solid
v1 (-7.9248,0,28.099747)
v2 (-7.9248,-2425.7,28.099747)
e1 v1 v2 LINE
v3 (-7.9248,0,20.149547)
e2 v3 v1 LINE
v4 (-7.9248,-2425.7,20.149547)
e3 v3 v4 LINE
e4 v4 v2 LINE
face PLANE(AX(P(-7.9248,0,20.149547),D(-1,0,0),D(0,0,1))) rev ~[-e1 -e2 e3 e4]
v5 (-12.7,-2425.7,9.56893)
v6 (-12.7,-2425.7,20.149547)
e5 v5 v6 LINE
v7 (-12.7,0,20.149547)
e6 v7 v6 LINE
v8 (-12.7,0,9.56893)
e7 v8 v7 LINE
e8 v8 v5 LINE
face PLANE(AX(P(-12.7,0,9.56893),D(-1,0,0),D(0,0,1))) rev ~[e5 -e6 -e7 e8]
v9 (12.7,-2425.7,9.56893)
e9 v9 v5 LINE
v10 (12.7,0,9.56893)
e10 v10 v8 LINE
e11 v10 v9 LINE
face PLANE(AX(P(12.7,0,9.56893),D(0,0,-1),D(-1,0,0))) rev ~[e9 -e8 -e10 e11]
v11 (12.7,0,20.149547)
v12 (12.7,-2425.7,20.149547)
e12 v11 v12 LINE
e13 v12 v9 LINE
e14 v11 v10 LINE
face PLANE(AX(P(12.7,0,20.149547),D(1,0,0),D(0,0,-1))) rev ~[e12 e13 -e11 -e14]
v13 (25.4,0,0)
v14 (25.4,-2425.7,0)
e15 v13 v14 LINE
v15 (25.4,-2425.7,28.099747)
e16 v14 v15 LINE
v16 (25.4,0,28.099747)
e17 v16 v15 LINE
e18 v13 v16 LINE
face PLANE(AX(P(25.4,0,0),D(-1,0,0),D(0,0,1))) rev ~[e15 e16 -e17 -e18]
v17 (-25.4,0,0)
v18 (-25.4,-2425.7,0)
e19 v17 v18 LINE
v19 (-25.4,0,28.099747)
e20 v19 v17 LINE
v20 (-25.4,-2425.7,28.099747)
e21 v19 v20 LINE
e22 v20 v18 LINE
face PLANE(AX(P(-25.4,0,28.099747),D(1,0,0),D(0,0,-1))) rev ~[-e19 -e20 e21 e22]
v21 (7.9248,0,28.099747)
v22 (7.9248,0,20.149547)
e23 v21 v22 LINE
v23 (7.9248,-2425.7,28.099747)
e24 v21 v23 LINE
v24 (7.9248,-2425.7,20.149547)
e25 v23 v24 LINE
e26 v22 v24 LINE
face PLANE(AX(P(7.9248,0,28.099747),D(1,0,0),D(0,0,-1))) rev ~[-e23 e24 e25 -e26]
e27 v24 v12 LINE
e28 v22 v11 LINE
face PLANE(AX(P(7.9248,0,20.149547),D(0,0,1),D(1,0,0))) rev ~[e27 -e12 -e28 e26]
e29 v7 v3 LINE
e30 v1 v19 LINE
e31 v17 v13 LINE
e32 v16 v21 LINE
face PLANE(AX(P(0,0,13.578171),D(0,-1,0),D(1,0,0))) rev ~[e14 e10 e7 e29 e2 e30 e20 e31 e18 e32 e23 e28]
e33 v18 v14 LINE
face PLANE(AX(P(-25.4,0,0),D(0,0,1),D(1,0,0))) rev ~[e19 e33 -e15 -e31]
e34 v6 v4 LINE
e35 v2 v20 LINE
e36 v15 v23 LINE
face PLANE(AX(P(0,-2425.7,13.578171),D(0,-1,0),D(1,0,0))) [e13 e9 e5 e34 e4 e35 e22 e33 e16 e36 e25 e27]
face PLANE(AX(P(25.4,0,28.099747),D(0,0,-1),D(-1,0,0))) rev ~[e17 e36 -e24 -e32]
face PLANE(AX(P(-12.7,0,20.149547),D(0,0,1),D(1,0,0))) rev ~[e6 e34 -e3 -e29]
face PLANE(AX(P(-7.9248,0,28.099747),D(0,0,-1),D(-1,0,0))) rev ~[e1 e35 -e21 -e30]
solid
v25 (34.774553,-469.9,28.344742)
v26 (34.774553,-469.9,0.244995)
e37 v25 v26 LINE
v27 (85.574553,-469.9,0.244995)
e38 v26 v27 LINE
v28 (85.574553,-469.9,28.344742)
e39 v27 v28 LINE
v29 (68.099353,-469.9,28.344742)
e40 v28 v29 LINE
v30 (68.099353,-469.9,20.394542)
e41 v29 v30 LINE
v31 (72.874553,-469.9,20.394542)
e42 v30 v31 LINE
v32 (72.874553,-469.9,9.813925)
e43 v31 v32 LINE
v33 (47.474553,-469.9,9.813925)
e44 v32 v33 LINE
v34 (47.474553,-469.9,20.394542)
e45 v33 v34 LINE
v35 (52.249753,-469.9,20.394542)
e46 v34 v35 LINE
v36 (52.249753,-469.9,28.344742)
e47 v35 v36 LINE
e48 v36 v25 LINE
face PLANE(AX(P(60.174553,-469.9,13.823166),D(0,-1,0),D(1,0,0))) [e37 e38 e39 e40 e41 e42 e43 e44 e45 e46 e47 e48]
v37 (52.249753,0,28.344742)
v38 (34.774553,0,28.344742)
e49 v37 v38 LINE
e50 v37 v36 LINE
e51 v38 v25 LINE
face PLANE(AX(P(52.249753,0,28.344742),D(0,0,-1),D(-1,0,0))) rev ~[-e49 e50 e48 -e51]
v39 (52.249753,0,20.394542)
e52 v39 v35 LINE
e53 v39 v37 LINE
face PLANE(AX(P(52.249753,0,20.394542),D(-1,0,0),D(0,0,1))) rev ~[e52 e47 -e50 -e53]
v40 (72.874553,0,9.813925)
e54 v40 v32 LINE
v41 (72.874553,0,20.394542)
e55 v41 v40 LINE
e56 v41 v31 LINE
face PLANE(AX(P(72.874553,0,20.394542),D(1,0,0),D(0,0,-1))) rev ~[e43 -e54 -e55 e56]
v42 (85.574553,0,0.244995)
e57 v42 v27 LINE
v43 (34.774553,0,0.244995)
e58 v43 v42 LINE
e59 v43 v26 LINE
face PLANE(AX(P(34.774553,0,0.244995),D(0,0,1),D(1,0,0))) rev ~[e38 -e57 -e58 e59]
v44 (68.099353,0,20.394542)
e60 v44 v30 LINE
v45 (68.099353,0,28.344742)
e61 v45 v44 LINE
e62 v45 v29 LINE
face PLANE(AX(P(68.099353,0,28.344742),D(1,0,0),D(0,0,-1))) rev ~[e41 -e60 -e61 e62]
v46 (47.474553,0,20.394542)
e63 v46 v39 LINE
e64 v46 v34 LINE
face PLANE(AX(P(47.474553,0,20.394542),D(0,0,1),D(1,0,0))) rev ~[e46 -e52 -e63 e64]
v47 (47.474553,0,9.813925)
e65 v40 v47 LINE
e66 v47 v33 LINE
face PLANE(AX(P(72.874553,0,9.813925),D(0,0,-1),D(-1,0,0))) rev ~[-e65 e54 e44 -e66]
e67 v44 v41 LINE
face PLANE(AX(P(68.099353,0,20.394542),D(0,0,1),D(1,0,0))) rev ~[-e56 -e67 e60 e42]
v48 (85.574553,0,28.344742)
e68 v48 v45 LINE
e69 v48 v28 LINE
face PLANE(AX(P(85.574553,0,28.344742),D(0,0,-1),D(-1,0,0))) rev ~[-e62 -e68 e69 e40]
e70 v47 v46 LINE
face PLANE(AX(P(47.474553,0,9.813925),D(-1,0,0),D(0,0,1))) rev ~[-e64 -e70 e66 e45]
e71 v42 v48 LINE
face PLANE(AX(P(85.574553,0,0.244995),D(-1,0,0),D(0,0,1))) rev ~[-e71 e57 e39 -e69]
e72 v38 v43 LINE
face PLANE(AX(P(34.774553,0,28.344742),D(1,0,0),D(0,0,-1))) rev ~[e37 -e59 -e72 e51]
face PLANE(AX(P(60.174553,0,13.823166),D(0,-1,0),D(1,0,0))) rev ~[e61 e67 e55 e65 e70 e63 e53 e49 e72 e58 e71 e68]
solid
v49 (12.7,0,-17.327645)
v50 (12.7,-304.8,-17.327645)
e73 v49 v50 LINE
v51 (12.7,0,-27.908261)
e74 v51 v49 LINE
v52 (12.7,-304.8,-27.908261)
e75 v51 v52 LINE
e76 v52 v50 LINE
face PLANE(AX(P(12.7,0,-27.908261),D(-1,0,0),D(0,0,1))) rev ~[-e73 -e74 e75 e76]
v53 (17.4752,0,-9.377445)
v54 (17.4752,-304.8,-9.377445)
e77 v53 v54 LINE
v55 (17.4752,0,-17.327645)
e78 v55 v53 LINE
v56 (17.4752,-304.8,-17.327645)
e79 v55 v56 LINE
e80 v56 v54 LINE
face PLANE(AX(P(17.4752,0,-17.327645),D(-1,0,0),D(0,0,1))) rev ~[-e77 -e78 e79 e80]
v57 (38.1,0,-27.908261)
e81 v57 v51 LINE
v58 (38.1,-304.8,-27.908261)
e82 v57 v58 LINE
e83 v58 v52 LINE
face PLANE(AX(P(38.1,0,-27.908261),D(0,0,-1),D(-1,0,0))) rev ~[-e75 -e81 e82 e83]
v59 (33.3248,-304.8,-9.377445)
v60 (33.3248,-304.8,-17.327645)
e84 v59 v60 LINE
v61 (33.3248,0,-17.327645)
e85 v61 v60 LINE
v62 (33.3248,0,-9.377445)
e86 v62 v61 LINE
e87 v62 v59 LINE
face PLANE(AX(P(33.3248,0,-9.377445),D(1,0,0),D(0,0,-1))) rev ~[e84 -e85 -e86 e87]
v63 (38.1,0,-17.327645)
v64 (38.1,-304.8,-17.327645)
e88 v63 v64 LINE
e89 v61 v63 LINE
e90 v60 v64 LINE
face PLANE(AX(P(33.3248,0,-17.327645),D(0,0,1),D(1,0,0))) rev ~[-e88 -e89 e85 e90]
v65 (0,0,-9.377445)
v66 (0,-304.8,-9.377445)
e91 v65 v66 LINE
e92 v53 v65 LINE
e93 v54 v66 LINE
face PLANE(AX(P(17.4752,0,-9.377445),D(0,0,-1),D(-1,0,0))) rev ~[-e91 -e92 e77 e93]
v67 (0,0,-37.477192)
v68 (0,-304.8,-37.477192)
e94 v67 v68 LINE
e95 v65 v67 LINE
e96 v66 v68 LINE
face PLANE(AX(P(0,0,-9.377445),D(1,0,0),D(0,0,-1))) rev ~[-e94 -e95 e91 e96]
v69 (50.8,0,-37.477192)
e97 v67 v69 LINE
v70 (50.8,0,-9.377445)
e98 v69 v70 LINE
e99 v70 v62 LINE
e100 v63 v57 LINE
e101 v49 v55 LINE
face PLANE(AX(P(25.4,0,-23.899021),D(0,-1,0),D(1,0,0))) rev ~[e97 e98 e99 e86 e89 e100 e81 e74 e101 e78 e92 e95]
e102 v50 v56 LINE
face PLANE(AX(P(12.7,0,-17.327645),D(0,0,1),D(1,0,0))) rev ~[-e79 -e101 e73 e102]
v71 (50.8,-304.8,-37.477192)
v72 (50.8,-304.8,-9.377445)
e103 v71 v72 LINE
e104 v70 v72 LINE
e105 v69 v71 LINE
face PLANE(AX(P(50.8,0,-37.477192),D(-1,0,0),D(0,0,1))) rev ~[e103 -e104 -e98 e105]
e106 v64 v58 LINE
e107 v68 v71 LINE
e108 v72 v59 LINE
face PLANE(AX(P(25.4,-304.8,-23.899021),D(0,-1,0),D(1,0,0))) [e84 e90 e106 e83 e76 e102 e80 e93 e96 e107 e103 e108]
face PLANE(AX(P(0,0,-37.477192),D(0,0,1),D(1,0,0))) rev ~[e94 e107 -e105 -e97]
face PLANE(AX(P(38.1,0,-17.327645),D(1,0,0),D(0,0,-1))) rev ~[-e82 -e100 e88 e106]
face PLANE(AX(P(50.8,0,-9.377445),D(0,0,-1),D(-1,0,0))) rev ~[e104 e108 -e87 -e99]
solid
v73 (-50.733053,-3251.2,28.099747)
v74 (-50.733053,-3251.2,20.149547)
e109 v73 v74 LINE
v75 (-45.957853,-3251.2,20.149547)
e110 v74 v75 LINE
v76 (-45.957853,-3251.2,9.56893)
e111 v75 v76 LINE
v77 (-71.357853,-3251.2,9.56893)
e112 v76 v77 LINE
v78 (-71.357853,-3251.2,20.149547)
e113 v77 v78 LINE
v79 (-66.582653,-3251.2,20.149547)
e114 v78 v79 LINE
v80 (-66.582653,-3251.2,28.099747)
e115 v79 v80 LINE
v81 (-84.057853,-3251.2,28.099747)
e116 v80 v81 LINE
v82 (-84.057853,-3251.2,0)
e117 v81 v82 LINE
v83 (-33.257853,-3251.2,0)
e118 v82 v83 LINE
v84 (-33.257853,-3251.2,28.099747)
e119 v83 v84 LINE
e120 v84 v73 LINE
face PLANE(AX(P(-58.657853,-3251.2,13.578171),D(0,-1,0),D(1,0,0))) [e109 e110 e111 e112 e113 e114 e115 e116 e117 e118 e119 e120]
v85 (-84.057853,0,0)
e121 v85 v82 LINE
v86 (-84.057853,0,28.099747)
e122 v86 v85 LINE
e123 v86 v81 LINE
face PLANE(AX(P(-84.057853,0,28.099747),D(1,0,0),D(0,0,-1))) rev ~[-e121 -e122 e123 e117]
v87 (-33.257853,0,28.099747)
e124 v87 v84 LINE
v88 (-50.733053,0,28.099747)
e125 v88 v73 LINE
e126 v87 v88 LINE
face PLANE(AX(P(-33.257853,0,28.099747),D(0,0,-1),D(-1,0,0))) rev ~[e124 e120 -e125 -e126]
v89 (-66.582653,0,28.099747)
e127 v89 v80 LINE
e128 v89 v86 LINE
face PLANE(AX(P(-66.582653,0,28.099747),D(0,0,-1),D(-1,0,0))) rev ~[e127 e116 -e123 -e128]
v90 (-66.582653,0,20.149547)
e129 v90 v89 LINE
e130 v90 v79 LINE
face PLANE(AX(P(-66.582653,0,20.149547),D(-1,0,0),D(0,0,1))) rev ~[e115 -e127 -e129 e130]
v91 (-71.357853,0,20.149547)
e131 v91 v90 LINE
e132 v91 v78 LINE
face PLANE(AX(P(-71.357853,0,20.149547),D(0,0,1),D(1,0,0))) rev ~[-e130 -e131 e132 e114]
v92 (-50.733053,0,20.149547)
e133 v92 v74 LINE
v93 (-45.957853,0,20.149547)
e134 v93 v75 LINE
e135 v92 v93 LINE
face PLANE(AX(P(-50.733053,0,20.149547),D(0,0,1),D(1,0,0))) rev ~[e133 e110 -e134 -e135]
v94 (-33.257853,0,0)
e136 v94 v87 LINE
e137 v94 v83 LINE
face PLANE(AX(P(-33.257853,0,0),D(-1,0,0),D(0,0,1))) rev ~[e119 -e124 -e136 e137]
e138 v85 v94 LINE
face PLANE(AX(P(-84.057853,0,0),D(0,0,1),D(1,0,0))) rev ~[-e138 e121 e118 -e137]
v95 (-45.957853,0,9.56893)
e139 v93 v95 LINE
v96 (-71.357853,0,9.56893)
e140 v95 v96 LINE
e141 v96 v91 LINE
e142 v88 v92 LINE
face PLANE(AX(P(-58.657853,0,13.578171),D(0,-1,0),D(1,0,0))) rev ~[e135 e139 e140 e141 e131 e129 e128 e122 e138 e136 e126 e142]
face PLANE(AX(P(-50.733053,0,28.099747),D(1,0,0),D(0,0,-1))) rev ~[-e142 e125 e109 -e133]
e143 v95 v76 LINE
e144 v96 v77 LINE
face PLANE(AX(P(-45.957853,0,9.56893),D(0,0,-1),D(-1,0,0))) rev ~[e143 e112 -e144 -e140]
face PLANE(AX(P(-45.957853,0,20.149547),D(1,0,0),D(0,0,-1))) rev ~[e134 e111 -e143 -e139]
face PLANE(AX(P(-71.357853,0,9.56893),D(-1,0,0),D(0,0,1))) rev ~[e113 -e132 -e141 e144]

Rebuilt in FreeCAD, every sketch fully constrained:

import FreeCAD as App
import Part
import Sketcher

V = App.Vector
Q = App.Units.Quantity


def add_polygon(sketch, points):
    """Adds a closed chain of lines whose ends are joined by coincident constraints."""
    first, n = sketch.GeometryCount, len(points)
    for a, b in zip(points, points[1:] + points[:1]):
        sketch.addGeometry(Part.LineSegment(App.Vector(*a, 0), App.Vector(*b, 0)), False)
    for i in range(n):
        sketch.addConstraint(Sketcher.Constraint("Coincident", first + i, 2, first + (i + 1) % n, 1))

doc = App.newDocument("Part")
params = doc.addObject("Spreadsheet::Sheet", "Params")
for row, (alias, value) in enumerate([
    ("sketch1_width", "2 in"),
    ("sketch1_width2", "1 in"),
    ("sketch1_width3", "0.688 in"),
    ("sketch1_height", "0.313 in"),
    ("pad1_length", "128 in"),
    ("sketch2_width", "2 in"),
    ("sketch2_width2", "1 in"),
    ("sketch2_width3", "0.688 in"),
    ("sketch2_height", "0.313 in"),
    ("pad2_length", "95.5 in"),
    ("sketch3_width", "2 in"),
    ("sketch3_width2", "1 in"),
    ("sketch3_width3", "0.688 in"),
    ("sketch3_height", "0.313 in"),
    ("pad3_length", "18.5 in"),
    ("sketch4_width", "2 in"),
    ("sketch4_width2", "1 in"),
    ("sketch4_width3", "0.688 in"),
    ("sketch4_height", "0.313 in"),
    ("pad4_length", "12 in"),
], start=1):
    params.set(f"A{row}", alias)
    params.set(f"B{row}", "=" + value)
    params.setAlias(f"B{row}", alias)

body = doc.addObject("PartDesign::Body", "Body")

sketch1 = body.newObject("Sketcher::SketchObject", "Sketch")
sketch1.AttachmentSupport = (doc.getObject("XZ_Plane"), [""])
sketch1.MapMode = "FlatFace"
add_polygon(sketch1, [(-84.1, 0), (-33.3, 0), (-33.3, 28.1), (-50.7, 28.1), (-50.7, 20.1), (-46, 20.1), (-46, 9.6), (-71.4, 9.6), (-71.4, 20.1), (-66.6, 20.1), (-66.6, 28.1), (-84.1, 28.1)])
sketch1.addConstraint(Sketcher.Constraint("Horizontal", 0))
sketch1.addConstraint(Sketcher.Constraint("Vertical", 1))
sketch1.addConstraint(Sketcher.Constraint("Horizontal", 2))
sketch1.addConstraint(Sketcher.Constraint("Vertical", 3))
sketch1.addConstraint(Sketcher.Constraint("Horizontal", 4))
sketch1.addConstraint(Sketcher.Constraint("Vertical", 5))
sketch1.addConstraint(Sketcher.Constraint("Horizontal", 6))
sketch1.addConstraint(Sketcher.Constraint("Vertical", 7))
sketch1.addConstraint(Sketcher.Constraint("Horizontal", 8))
sketch1.addConstraint(Sketcher.Constraint("Vertical", 9))
sketch1.addConstraint(Sketcher.Constraint("Horizontal", 10))
sketch1.addConstraint(Sketcher.Constraint("Vertical", 11))
sketch1.addConstraint(Sketcher.Constraint("PointOnObject", 0, 2, -1))
sketch1.addConstraint(Sketcher.Constraint("Horizontal", 4, 2, 7, 2))
sketch1.addConstraint(Sketcher.Constraint("Horizontal", 2, 2, 9, 2))
sketch1.addConstraint(Sketcher.Constraint("Equal", 4, 8))
sketch1.addConstraint(Sketcher.Constraint("Equal", 2, 10))
sketch1.addConstraint(Sketcher.Constraint("DistanceX", 0, 1, 0, 2, Q("2 in")))
sketch1.addConstraint(Sketcher.Constraint("DistanceX", 6, 2, 6, 1, Q("1 in")))
sketch1.addConstraint(Sketcher.Constraint("DistanceX", 2, 2, 2, 1, Q("0.688 in")))
sketch1.addConstraint(Sketcher.Constraint("DistanceY", 3, 2, 3, 1, Q("0.313 in")))
sketch1.addConstraint(Sketcher.Constraint("DistanceY", 1, 1, 1, 2, Q("28.099747 mm")))
sketch1.addConstraint(Sketcher.Constraint("DistanceY", 5, 2, 5, 1, Q("10.580617 mm")))
sketch1.addConstraint(Sketcher.Constraint("DistanceX", 0, 2, -1, 1, Q("33.257853 mm")))
sketch1.setExpression("Constraints[29]", "Params.sketch1_width")
sketch1.setExpression("Constraints[30]", "Params.sketch1_width2")
sketch1.setExpression("Constraints[31]", "Params.sketch1_width3")
sketch1.setExpression("Constraints[32]", "Params.sketch1_height")
pad1 = body.newObject("PartDesign::Pad", "Pad")
pad1.Profile = sketch1
pad1.setExpression("Length", "Params.pad1_length")
body2 = doc.addObject("PartDesign::Body", "Body001")

sketch2 = body2.newObject("Sketcher::SketchObject", "Sketch001")
sketch2.AttachmentSupport = (doc.getObject("XZ_Plane001"), [""])
sketch2.MapMode = "FlatFace"
add_polygon(sketch2, [(-25.4, 0), (25.4, 0), (25.4, 28.1), (7.9, 28.1), (7.9, 20.1), (12.7, 20.1), (12.7, 9.6), (-12.7, 9.6), (-12.7, 20.1), (-7.9, 20.1), (-7.9, 28.1), (-25.4, 28.1)])
sketch2.addConstraint(Sketcher.Constraint("Horizontal", 0))
sketch2.addConstraint(Sketcher.Constraint("Vertical", 1))
sketch2.addConstraint(Sketcher.Constraint("Horizontal", 2))
sketch2.addConstraint(Sketcher.Constraint("Vertical", 3))
sketch2.addConstraint(Sketcher.Constraint("Horizontal", 4))
sketch2.addConstraint(Sketcher.Constraint("Vertical", 5))
sketch2.addConstraint(Sketcher.Constraint("Horizontal", 6))
sketch2.addConstraint(Sketcher.Constraint("Vertical", 7))
sketch2.addConstraint(Sketcher.Constraint("Horizontal", 8))
sketch2.addConstraint(Sketcher.Constraint("Vertical", 9))
sketch2.addConstraint(Sketcher.Constraint("Horizontal", 10))
sketch2.addConstraint(Sketcher.Constraint("Vertical", 11))
sketch2.addConstraint(Sketcher.Constraint("Symmetric", 0, 2, 11, 2, -1, 1))
sketch2.addConstraint(Sketcher.Constraint("Symmetric", 4, 2, 7, 2, -2))
sketch2.addConstraint(Sketcher.Constraint("Symmetric", 2, 2, 9, 2, -2))
sketch2.addConstraint(Sketcher.Constraint("DistanceX", 0, 1, 0, 2, Q("2 in")))
sketch2.addConstraint(Sketcher.Constraint("DistanceX", 6, 2, 6, 1, Q("1 in")))
sketch2.addConstraint(Sketcher.Constraint("DistanceX", 2, 2, 2, 1, Q("0.688 in")))
sketch2.addConstraint(Sketcher.Constraint("DistanceY", 3, 2, 3, 1, Q("0.313 in")))
sketch2.addConstraint(Sketcher.Constraint("DistanceY", 1, 1, 1, 2, Q("28.099747 mm")))
sketch2.addConstraint(Sketcher.Constraint("DistanceY", 5, 2, 5, 1, Q("10.580617 mm")))
sketch2.setExpression("Constraints[27]", "Params.sketch2_width")
sketch2.setExpression("Constraints[28]", "Params.sketch2_width2")
sketch2.setExpression("Constraints[29]", "Params.sketch2_width3")
sketch2.setExpression("Constraints[30]", "Params.sketch2_height")
pad2 = body2.newObject("PartDesign::Pad", "Pad001")
pad2.Profile = sketch2
pad2.setExpression("Length", "Params.pad2_length")
body3 = doc.addObject("PartDesign::Body", "Body002")

sketch3 = body3.newObject("Sketcher::SketchObject", "Sketch002")
sketch3.AttachmentSupport = (doc.getObject("XZ_Plane002"), [""])
sketch3.MapMode = "FlatFace"
add_polygon(sketch3, [(34.8, 0.2), (85.6, 0.2), (85.6, 28.3), (68.1, 28.3), (68.1, 20.4), (72.9, 20.4), (72.9, 9.8), (47.5, 9.8), (47.5, 20.4), (52.2, 20.4), (52.2, 28.3), (34.8, 28.3)])
sketch3.addConstraint(Sketcher.Constraint("Horizontal", 0))
sketch3.addConstraint(Sketcher.Constraint("Vertical", 1))
sketch3.addConstraint(Sketcher.Constraint("Horizontal", 2))
sketch3.addConstraint(Sketcher.Constraint("Vertical", 3))
sketch3.addConstraint(Sketcher.Constraint("Horizontal", 4))
sketch3.addConstraint(Sketcher.Constraint("Vertical", 5))
sketch3.addConstraint(Sketcher.Constraint("Horizontal", 6))
sketch3.addConstraint(Sketcher.Constraint("Vertical", 7))
sketch3.addConstraint(Sketcher.Constraint("Horizontal", 8))
sketch3.addConstraint(Sketcher.Constraint("Vertical", 9))
sketch3.addConstraint(Sketcher.Constraint("Horizontal", 10))
sketch3.addConstraint(Sketcher.Constraint("Vertical", 11))
sketch3.addConstraint(Sketcher.Constraint("Horizontal", 4, 2, 7, 2))
sketch3.addConstraint(Sketcher.Constraint("Horizontal", 2, 2, 9, 2))
sketch3.addConstraint(Sketcher.Constraint("Equal", 4, 8))
sketch3.addConstraint(Sketcher.Constraint("Equal", 2, 10))
sketch3.addConstraint(Sketcher.Constraint("DistanceX", 0, 1, 0, 2, Q("2 in")))
sketch3.addConstraint(Sketcher.Constraint("DistanceX", 6, 2, 6, 1, Q("1 in")))
sketch3.addConstraint(Sketcher.Constraint("DistanceX", 2, 2, 2, 1, Q("0.688 in")))
sketch3.addConstraint(Sketcher.Constraint("DistanceY", 3, 2, 3, 1, Q("0.313 in")))
sketch3.addConstraint(Sketcher.Constraint("DistanceY", 1, 1, 1, 2, Q("28.099747 mm")))
sketch3.addConstraint(Sketcher.Constraint("DistanceY", 5, 2, 5, 1, Q("10.580617 mm")))
sketch3.addConstraint(Sketcher.Constraint("DistanceY", -1, 1, 1, 2, Q("28.344742 mm")))
sketch3.addConstraint(Sketcher.Constraint("DistanceX", -1, 1, 0, 2, Q("85.574553 mm")))
sketch3.setExpression("Constraints[28]", "Params.sketch3_width")
sketch3.setExpression("Constraints[29]", "Params.sketch3_width2")
sketch3.setExpression("Constraints[30]", "Params.sketch3_width3")
sketch3.setExpression("Constraints[31]", "Params.sketch3_height")
pad3 = body3.newObject("PartDesign::Pad", "Pad002")
pad3.Profile = sketch3
pad3.setExpression("Length", "Params.pad3_length")
body4 = doc.addObject("PartDesign::Body", "Body003")

sketch4 = body4.newObject("Sketcher::SketchObject", "Sketch003")
sketch4.AttachmentSupport = (doc.getObject("XZ_Plane003"), [""])
sketch4.MapMode = "FlatFace"
add_polygon(sketch4, [(0, -37.5), (50.8, -37.5), (50.8, -9.4), (33.3, -9.4), (33.3, -17.3), (38.1, -17.3), (38.1, -27.9), (12.7, -27.9), (12.7, -17.3), (17.5, -17.3), (17.5, -9.4), (0, -9.4)])
sketch4.addConstraint(Sketcher.Constraint("Horizontal", 0))
sketch4.addConstraint(Sketcher.Constraint("Vertical", 1))
sketch4.addConstraint(Sketcher.Constraint("Horizontal", 2))
sketch4.addConstraint(Sketcher.Constraint("Vertical", 3))
sketch4.addConstraint(Sketcher.Constraint("Horizontal", 4))
sketch4.addConstraint(Sketcher.Constraint("Vertical", 5))
sketch4.addConstraint(Sketcher.Constraint("Horizontal", 6))
sketch4.addConstraint(Sketcher.Constraint("Vertical", 7))
sketch4.addConstraint(Sketcher.Constraint("Horizontal", 8))
sketch4.addConstraint(Sketcher.Constraint("Vertical", 9))
sketch4.addConstraint(Sketcher.Constraint("Horizontal", 10))
sketch4.addConstraint(Sketcher.Constraint("Vertical", 11))
sketch4.addConstraint(Sketcher.Constraint("PointOnObject", 10, 2, -2))
sketch4.addConstraint(Sketcher.Constraint("Horizontal", 4, 2, 7, 2))
sketch4.addConstraint(Sketcher.Constraint("Horizontal", 2, 2, 9, 2))
sketch4.addConstraint(Sketcher.Constraint("Equal", 4, 8))
sketch4.addConstraint(Sketcher.Constraint("Equal", 2, 10))
sketch4.addConstraint(Sketcher.Constraint("DistanceX", 0, 1, 0, 2, Q("2 in")))
sketch4.addConstraint(Sketcher.Constraint("DistanceX", 6, 2, 6, 1, Q("1 in")))
sketch4.addConstraint(Sketcher.Constraint("DistanceX", 2, 2, 2, 1, Q("0.688 in")))
sketch4.addConstraint(Sketcher.Constraint("DistanceY", 3, 2, 3, 1, Q("0.313 in")))
sketch4.addConstraint(Sketcher.Constraint("DistanceY", 1, 1, 1, 2, Q("28.099747 mm")))
sketch4.addConstraint(Sketcher.Constraint("DistanceY", 5, 2, 5, 1, Q("10.580616 mm")))
sketch4.addConstraint(Sketcher.Constraint("DistanceY", 5, 2, -1, 1, Q("27.908261 mm")))
sketch4.setExpression("Constraints[29]", "Params.sketch4_width")
sketch4.setExpression("Constraints[30]", "Params.sketch4_width2")
sketch4.setExpression("Constraints[31]", "Params.sketch4_width3")
sketch4.setExpression("Constraints[32]", "Params.sketch4_height")
pad4 = body4.newObject("PartDesign::Pad", "Pad003")
pad4.Profile = sketch4
pad4.setExpression("Length", "Params.pad4_length")

doc.recompute()
